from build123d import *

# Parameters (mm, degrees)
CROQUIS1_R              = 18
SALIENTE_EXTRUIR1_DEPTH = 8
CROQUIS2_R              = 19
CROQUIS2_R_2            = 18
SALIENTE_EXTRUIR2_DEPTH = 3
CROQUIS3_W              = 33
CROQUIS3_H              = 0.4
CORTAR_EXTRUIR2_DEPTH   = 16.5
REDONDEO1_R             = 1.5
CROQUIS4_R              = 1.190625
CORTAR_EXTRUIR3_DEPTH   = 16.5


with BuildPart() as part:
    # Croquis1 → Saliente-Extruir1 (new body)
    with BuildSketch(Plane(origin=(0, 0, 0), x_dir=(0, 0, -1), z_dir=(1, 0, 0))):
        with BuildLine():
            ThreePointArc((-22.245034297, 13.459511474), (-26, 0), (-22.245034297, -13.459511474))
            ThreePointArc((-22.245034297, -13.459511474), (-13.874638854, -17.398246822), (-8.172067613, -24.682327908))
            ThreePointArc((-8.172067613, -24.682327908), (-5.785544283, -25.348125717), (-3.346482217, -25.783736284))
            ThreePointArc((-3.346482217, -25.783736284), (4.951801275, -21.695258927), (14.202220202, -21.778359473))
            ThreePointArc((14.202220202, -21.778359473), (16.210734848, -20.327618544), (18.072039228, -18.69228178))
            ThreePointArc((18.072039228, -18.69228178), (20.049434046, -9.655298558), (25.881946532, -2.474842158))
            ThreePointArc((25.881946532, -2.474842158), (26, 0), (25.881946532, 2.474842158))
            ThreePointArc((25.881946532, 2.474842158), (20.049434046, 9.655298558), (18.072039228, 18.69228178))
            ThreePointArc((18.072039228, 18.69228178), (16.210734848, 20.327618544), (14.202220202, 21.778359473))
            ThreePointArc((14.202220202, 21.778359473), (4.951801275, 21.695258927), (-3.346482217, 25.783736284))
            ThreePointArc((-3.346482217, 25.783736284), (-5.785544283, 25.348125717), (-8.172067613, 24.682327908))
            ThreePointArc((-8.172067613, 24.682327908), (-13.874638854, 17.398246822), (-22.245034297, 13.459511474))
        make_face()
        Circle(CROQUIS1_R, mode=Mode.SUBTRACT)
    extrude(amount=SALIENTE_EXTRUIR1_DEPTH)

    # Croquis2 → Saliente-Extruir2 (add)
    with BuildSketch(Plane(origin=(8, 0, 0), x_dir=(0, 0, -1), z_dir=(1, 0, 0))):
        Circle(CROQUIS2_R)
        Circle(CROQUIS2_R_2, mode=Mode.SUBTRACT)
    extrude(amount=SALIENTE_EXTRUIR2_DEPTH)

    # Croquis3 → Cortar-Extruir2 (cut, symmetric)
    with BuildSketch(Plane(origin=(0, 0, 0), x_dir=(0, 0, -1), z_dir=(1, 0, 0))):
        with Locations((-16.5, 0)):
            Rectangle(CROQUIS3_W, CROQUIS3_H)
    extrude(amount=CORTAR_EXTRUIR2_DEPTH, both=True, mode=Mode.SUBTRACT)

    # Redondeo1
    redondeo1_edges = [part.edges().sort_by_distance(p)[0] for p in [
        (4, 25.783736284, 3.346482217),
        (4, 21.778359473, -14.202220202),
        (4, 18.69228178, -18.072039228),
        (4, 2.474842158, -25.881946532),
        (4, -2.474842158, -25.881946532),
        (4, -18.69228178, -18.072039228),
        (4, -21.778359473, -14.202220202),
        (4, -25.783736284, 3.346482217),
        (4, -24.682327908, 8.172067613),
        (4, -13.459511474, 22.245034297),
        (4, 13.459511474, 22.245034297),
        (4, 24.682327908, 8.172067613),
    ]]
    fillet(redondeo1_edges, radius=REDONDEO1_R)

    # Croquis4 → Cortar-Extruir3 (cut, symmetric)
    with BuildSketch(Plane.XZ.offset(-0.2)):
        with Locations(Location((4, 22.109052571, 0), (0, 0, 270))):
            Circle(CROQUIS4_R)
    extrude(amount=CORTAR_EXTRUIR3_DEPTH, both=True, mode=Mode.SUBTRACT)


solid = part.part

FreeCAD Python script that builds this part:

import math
import FreeCAD as App
import Part
import Sketcher

V = App.Vector
Q = App.Units.Quantity


def edges_at(feature, points):
    """Names of the edges that pass closest to the given points."""
    edges = feature.Shape.Edges
    near = lambda p: min(range(len(edges)), key=lambda i: edges[i].distToShape(Part.Vertex(*p))[0])
    return sorted({f"Edge{near(p) + 1}" for p in points})

doc = App.newDocument("Part")
params = doc.addObject("Spreadsheet::Sheet", "Params")
for row, (alias, value) in enumerate([
    ("sketch1_diameter", "36 mm"),
    ("sketch1_radius", "26 mm"),
    ("sketch1_radius2", "20 mm"),
    ("sketch1_height", "4.8 mm"),
    ("pad1_length", "8 mm"),
    ("sketch2_diameter", "38 mm"),
    ("sketch2_diameter2", "36 mm"),
    ("pad2_length", "3 mm"),
    ("sketch3_height", "33 mm"),
    ("sketch3_width", "0.4 mm"),
    ("pocket1_length", "33 mm"),
    ("fillet_radius", "1.5 mm"),
    ("pocket2_length", "33 mm"),
], start=1):
    params.set(f"A{row}", alias)
    params.set(f"B{row}", "=" + value)
    params.setAlias(f"B{row}", alias)

body = doc.addObject("PartDesign::Body", "Body")

# Sketch on YZ plane
sketch1 = doc.addObject("Sketcher::SketchObject", "Sketch")
body.addObject(sketch1)
sketch1.AttachmentSupport = (doc.YZ_Plane, [""])
sketch1.MapMode = "FlatFace"
sketch1.addGeometry([
    Part.ArcOfCircle(Part.Circle(V(0, 0, 0), V(0, 0, 1), 26), math.radians(59), math.radians(121)),  # 0
    Part.ArcOfCircle(Part.Circle(V(-33, 26.3, 0), V(0, 0, 1), 20), math.radians(-65), math.radians(-12)),  # 1
    Part.ArcOfCircle(Part.Circle(V(0, 0, 0), V(0, 0, 1), 26), math.radians(161.68), math.radians(172.6)),  # 2
    Part.ArcOfCircle(Part.Circle(V(-41.2, -9.4, 0), V(0, 0, 1), 20), math.radians(-14), math.radians(40)),  # 3
    Part.ArcOfCircle(Part.Circle(V(0, 0, 0), V(0, 0, 1), 26), math.radians(-146.89), math.radians(-135.97)),  # 4
    Part.ArcOfCircle(Part.Circle(V(-18.3, -38.1, 0), V(0, 0, 1), 20), math.radians(38), math.radians(91)),  # 5
    Part.ArcOfCircle(Part.Circle(V(0, 0, 0), V(0, 0, 1), 26), math.radians(-95.46), math.radians(-84.54)),  # 6
    Part.ArcOfCircle(Part.Circle(V(18.3, -38.1, 0), V(0, 0, 1), 20), math.radians(89), math.radians(142)),  # 7
    Part.ArcOfCircle(Part.Circle(V(0, 0, 0), V(0, 0, 1), 26), math.radians(-44.03), math.radians(-33.11)),  # 8
    Part.ArcOfCircle(Part.Circle(V(41.2, -9.4, 0), V(0, 0, 1), 20), math.radians(140), math.radians(194)),  # 9
    Part.ArcOfCircle(Part.Circle(V(0, 0, 0), V(0, 0, 1), 26), math.radians(7.4), math.radians(18.32)),  # 10
    Part.ArcOfCircle(Part.Circle(V(33, 26.3, 0), V(0, 0, 1), 20), math.radians(-168), math.radians(-115)),  # 11
    Part.Circle(V(0, 0, 0), V(0, 0, 1), 18),  # 12
], False)
sketch1.addConstraint([
    Sketcher.Constraint("Coincident", 0, 2, 1, 2),
    Sketcher.Constraint("Coincident", 1, 1, 2, 1),
    Sketcher.Constraint("Coincident", 2, 2, 3, 2),
    Sketcher.Constraint("Coincident", 3, 1, 4, 1),
    Sketcher.Constraint("Coincident", 4, 2, 5, 2),
    Sketcher.Constraint("Coincident", 5, 1, 6, 1),
    Sketcher.Constraint("Coincident", 6, 2, 7, 2),
    Sketcher.Constraint("Coincident", 7, 1, 8, 1),
    Sketcher.Constraint("Coincident", 8, 2, 9, 2),
    Sketcher.Constraint("Coincident", 9, 1, 10, 1),
    Sketcher.Constraint("Coincident", 10, 2, 11, 2),
    Sketcher.Constraint("Coincident", 11, 1, 0, 1),
    Sketcher.Constraint("Coincident", 0, 3, -1, 1),
    Sketcher.Constraint("Coincident", 2, 3, -1, 1),
    Sketcher.Constraint("Coincident", 4, 3, -1, 1),
    Sketcher.Constraint("Coincident", 6, 3, -1, 1),
    Sketcher.Constraint("Coincident", 8, 3, -1, 1),
    Sketcher.Constraint("Coincident", 10, 3, -1, 1),
    Sketcher.Constraint("Coincident", 12, 3, -1, 1),
    Sketcher.Constraint("Equal", 0, 2),
    Sketcher.Constraint("Equal", 1, 3),
    Sketcher.Constraint("Equal", 2, 4),
    Sketcher.Constraint("Equal", 3, 5),
    Sketcher.Constraint("Equal", 4, 6),
    Sketcher.Constraint("Equal", 5, 7),
    Sketcher.Constraint("Equal", 6, 8),
    Sketcher.Constraint("Equal", 7, 9),
    Sketcher.Constraint("Equal", 8, 10),
    Sketcher.Constraint("Equal", 9, 11),
    Sketcher.Constraint("Symmetric", 5, 3, 7, 3, -2),
    Sketcher.Constraint("Symmetric", 3, 3, 9, 3, -2),
    Sketcher.Constraint("Symmetric", 1, 3, 11, 3, -2),
    Sketcher.Constraint("Diameter", 12, Q("36 mm")),
    Sketcher.Constraint("Radius", 0, Q("26 mm")),
    Sketcher.Constraint("Radius", 1, Q("20 mm")),
    Sketcher.Constraint("DistanceY", 3, 1, 3, 3, Q("4.8 mm")),
    Sketcher.Constraint("DistanceY", 0, 2, 1, 3, Q("4.099401 mm")),
    Sketcher.Constraint("DistanceY", 3, 3, -1, 1, Q("9.40222 mm")),
    Sketcher.Constraint("DistanceY", 5, 3, -1, 1, Q("38.068811 mm")),
    Sketcher.Constraint("DistanceX", 0, 2, -1, 1, Q("13.459511 mm")),
    Sketcher.Constraint("DistanceY", 7, 1, -1, 1, Q("18.072039 mm")),
])
sketch1.setExpression("Constraints[32]", "Params.sketch1_diameter")
sketch1.setExpression("Constraints[33]", "Params.sketch1_radius")
sketch1.setExpression("Constraints[34]", "Params.sketch1_radius2")
sketch1.setExpression("Constraints[35]", "Params.sketch1_height")
pad1 = doc.addObject("PartDesign::Pad", "Pad")
body.addObject(pad1)
pad1.Profile = sketch1
pad1.setExpression("Length", "Params.pad1_length")

# Sketch on YZ plane
sketch2 = doc.addObject("Sketcher::SketchObject", "Sketch001")
body.addObject(sketch2)
sketch2.AttachmentSupport = (doc.YZ_Plane, [""])
sketch2.MapMode = "FlatFace"
sketch2.AttachmentOffset = App.Placement(V(0, 0, 8), App.Rotation())
sketch2.addGeometry([
    Part.Circle(V(0, 0, 0), V(0, 0, 1), 19),
    Part.Circle(V(0, 0, 0), V(0, 0, 1), 18),
], False)
sketch2.addConstraint([
    Sketcher.Constraint("Coincident", 0, 3, -1, 1),
    Sketcher.Constraint("Coincident", 1, 3, -1, 1),
    Sketcher.Constraint("Diameter", 0, Q("38 mm")),
    Sketcher.Constraint("Diameter", 1, Q("36 mm")),
])
sketch2.setExpression("Constraints[2]", "Params.sketch2_diameter")
sketch2.setExpression("Constraints[3]", "Params.sketch2_diameter2")
pad2 = doc.addObject("PartDesign::Pad", "Pad001")
body.addObject(pad2)
pad2.Profile = sketch2
pad2.setExpression("Length", "Params.pad2_length")

# Sketch on YZ plane
sketch3 = doc.addObject("Sketcher::SketchObject", "Sketch002")
body.addObject(sketch3)
sketch3.AttachmentSupport = (doc.YZ_Plane, [""])
sketch3.MapMode = "FlatFace"
sketch3.addGeometry([
    Part.LineSegment(V(0.2, 33, 0), V(-0.2, 33, 0)),
    Part.LineSegment(V(-0.2, 33, 0), V(-0.2, 0, 0)),
    Part.LineSegment(V(-0.2, 0, 0), V(0.2, 0, 0)),
    Part.LineSegment(V(0.2, 0, 0), V(0.2, 33, 0)),
], False)
sketch3.addConstraint([
    Sketcher.Constraint("Coincident", 0, 2, 1, 1),
    Sketcher.Constraint("Coincident", 1, 2, 2, 1),
    Sketcher.Constraint("Coincident", 2, 2, 3, 1),
    Sketcher.Constraint("Coincident", 3, 2, 0, 1),
    Sketcher.Constraint("Horizontal", 0),
    Sketcher.Constraint("Vertical", 1),
    Sketcher.Constraint("Horizontal", 2),
    Sketcher.Constraint("Vertical", 3),
    Sketcher.Constraint("Symmetric", 1, 2, 2, 2, -1, 1),
    Sketcher.Constraint("DistanceY", 1, 2, 1, 1, Q("33 mm")),
    Sketcher.Constraint("DistanceX", 0, 2, 0, 1, Q("0.4 mm")),
])
sketch3.setExpression("Constraints[9]", "Params.sketch3_height")
sketch3.setExpression("Constraints[10]", "Params.sketch3_width")
pocket1 = doc.addObject("PartDesign::Pocket", "Pocket")
body.addObject(pocket1)
pocket1.Profile = sketch3
pocket1.setExpression("Length", "Params.pocket1_length")
pocket1.Midplane = True
doc.recompute()

fillet = doc.addObject("PartDesign::Fillet", "Fillet")
body.addObject(fillet)
fillet.Base = (pocket1, edges_at(pocket1, [
    (4, 25.784, 3.346),
    (4, 21.778, -14.202),
    (4, 18.692, -18.072),
    (4, 2.475, -25.882),
    (4, -2.475, -25.882),
    (4, -18.692, -18.072),
    (4, -21.778, -14.202),
    (4, -25.784, 3.346),
    (4, -24.682, 8.172),
    (4, -13.46, 22.245),
    (4, 13.46, 22.245),
    (4, 24.682, 8.172),
]))
fillet.setExpression("Radius", "Params.fillet_radius")

# Sketch on XZ plane
sketch4 = doc.addObject("Sketcher::SketchObject", "Sketch003")
body.addObject(sketch4)
sketch4.AttachmentSupport = (doc.XZ_Plane, [""])
sketch4.MapMode = "FlatFace"
sketch4.AttachmentOffset = App.Placement(V(0, 0, -0.2), App.Rotation())
sketch4.addGeometry(Part.Circle(V(4, 22.1, 0), V(0, 0, 1), 1.2), False)
sketch4.addConstraint([
    Sketcher.Constraint("DistanceX", -1, 1, 0, 3, Q("4 mm")),
    Sketcher.Constraint("Diameter", 0, Q("2.38125 mm")),
    Sketcher.Constraint("DistanceY", -1, 1, 0, 3, Q("22.109053 mm")),
])
pocket2 = doc.addObject("PartDesign::Pocket", "Pocket001")
body.addObject(pocket2)
pocket2.Profile = sketch4
pocket2.setExpression("Length", "Params.pocket2_length")
pocket2.Midplane = True

doc.recompute()
